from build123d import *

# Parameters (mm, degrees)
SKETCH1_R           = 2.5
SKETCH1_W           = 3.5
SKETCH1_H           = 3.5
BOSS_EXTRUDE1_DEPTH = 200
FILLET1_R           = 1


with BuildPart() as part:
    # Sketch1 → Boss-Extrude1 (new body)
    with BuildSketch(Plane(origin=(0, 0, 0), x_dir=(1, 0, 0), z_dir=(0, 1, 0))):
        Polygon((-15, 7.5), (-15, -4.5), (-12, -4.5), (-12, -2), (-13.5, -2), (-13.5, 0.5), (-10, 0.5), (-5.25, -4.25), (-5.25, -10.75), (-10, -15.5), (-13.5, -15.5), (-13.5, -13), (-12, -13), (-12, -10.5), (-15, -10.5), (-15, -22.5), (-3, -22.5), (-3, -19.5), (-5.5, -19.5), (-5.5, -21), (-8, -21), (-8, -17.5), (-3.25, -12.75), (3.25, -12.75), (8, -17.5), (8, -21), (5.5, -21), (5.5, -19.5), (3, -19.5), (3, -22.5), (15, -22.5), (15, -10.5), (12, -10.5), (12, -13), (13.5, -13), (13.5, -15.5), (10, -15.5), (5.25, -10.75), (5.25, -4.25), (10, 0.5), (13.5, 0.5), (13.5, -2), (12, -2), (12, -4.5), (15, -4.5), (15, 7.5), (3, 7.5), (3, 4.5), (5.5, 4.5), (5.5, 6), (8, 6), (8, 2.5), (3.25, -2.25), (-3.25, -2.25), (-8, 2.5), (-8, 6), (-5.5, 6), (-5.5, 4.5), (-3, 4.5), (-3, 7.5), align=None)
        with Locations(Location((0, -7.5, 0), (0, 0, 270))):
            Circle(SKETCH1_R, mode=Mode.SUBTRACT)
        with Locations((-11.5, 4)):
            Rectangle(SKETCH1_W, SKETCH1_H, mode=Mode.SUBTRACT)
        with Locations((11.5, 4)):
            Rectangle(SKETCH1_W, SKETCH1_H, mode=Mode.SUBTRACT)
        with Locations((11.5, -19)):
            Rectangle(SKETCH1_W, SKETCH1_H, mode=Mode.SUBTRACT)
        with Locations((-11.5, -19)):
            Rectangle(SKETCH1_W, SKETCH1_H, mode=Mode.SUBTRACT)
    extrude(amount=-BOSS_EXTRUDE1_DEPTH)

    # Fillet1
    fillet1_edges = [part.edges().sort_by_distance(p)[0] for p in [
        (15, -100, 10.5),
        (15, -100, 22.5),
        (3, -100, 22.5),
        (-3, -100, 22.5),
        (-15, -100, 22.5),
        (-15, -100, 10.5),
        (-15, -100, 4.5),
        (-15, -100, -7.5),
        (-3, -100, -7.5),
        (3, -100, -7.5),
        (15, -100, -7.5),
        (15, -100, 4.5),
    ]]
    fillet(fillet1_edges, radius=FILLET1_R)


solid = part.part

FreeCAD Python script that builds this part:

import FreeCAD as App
import Part
import Sketcher

V = App.Vector
Q = App.Units.Quantity


def edges_at(feature, points):
    """Names of the edges that pass closest to the given points."""
    edges = feature.Shape.Edges
    near = lambda p: min(range(len(edges)), key=lambda i: edges[i].distToShape(Part.Vertex(*p))[0])
    return sorted({f"Edge{near(p) + 1}" for p in points})


def add_polygon(sketch, points):
    """Adds a closed chain of lines whose ends are joined by coincident constraints."""
    first, n = sketch.GeometryCount, len(points)
    for a, b in zip(points, points[1:] + points[:1]):
        sketch.addGeometry(Part.LineSegment(App.Vector(*a, 0), App.Vector(*b, 0)), False)
    for i in range(n):
        sketch.addConstraint(Sketcher.Constraint("Coincident", first + i, 2, first + (i + 1) % n, 1))

doc = App.newDocument("Part")
body = doc.addObject("PartDesign::Body", "Body")

# Sketch on XZ plane
sketch1 = body.newObject("Sketcher::SketchObject", "Sketch")
sketch1.AttachmentSupport = (doc.getObject("XZ_Plane"), [""])
sketch1.MapMode = "FlatFace"
add_polygon(sketch1, [(-15, -7.5), (-15, 4.5), (-12, 4.5), (-12, 2), (-13.5, 2), (-13.5, -0.5), (-10, -0.5), (-5.2, 4.2), (-5.2, 10.8), (-10, 15.5), (-13.5, 15.5), (-13.5, 13), (-12, 13), (-12, 10.5), (-15, 10.5), (-15, 22.5), (-3, 22.5), (-3, 19.5), (-5.5, 19.5), (-5.5, 21), (-8, 21), (-8, 17.5), (-3.2, 12.8), (3.2, 12.8), (8, 17.5), (8, 21), (5.5, 21), (5.5, 19.5), (3, 19.5), (3, 22.5), (15, 22.5), (15, 10.5), (12, 10.5), (12, 13), (13.5, 13), (13.5, 15.5), (10, 15.5), (5.2, 10.8), (5.2, 4.2), (10, -0.5), (13.5, -0.5), (13.5, 2), (12, 2), (12, 4.5), (15, 4.5), (15, -7.5), (3, -7.5), (3, -4.5), (5.5, -4.5), (5.5, -6), (8, -6), (8, -2.5), (3.2, 2.2), (-3.2, 2.2), (-8, -2.5), (-8, -6), (-5.5, -6), (-5.5, -4.5), (-3, -4.5), (-3, -7.5)])  # lines 0-59
add_polygon(sketch1, [(-9.8, 20.8), (-13.2, 20.8), (-13.2, 17.2), (-9.8, 17.2)])  # lines 60-63
add_polygon(sketch1, [(13.2, 20.8), (9.8, 20.8), (9.8, 17.2), (13.2, 17.2)])  # lines 64-67
add_polygon(sketch1, [(-9.8, -2.2), (-13.2, -2.2), (-13.2, -5.8), (-9.8, -5.8)])  # lines 68-71
sketch1.addGeometry(Part.Circle(V(0, 7.5, 0), V(0, 0, 1), 2.5), False)  # 72
add_polygon(sketch1, [(13.2, -2.2), (9.8, -2.2), (9.8, -5.8), (13.2, -5.8)])  # lines 73-76
sketch1.addConstraint(Sketcher.Constraint("Vertical", 0))
sketch1.addConstraint(Sketcher.Constraint("Horizontal", 1))
sketch1.addConstraint(Sketcher.Constraint("Vertical", 2))
sketch1.addConstraint(Sketcher.Constraint("Horizontal", 3))
sketch1.addConstraint(Sketcher.Constraint("Vertical", 4))
sketch1.addConstraint(Sketcher.Constraint("Horizontal", 5))
sketch1.addConstraint(Sketcher.Constraint("Vertical", 7))
sketch1.addConstraint(Sketcher.Constraint("Horizontal", 9))
sketch1.addConstraint(Sketcher.Constraint("Vertical", 10))
sketch1.addConstraint(Sketcher.Constraint("Horizontal", 11))
sketch1.addConstraint(Sketcher.Constraint("Vertical", 12))
sketch1.addConstraint(Sketcher.Constraint("Horizontal", 13))
sketch1.addConstraint(Sketcher.Constraint("Vertical", 14))
sketch1.addConstraint(Sketcher.Constraint("Horizontal", 15))
sketch1.addConstraint(Sketcher.Constraint("Vertical", 16))
sketch1.addConstraint(Sketcher.Constraint("Horizontal", 17))
sketch1.addConstraint(Sketcher.Constraint("Vertical", 18))
sketch1.addConstraint(Sketcher.Constraint("Horizontal", 19))
sketch1.addConstraint(Sketcher.Constraint("Vertical", 20))
sketch1.addConstraint(Sketcher.Constraint("Horizontal", 22))
sketch1.addConstraint(Sketcher.Constraint("Vertical", 24))
sketch1.addConstraint(Sketcher.Constraint("Horizontal", 25))
sketch1.addConstraint(Sketcher.Constraint("Vertical", 26))
sketch1.addConstraint(Sketcher.Constraint("Horizontal", 27))
sketch1.addConstraint(Sketcher.Constraint("Vertical", 28))
sketch1.addConstraint(Sketcher.Constraint("Horizontal", 29))
sketch1.addConstraint(Sketcher.Constraint("Vertical", 30))
sketch1.addConstraint(Sketcher.Constraint("Horizontal", 31))
sketch1.addConstraint(Sketcher.Constraint("Vertical", 32))
sketch1.addConstraint(Sketcher.Constraint("Horizontal", 33))
sketch1.addConstraint(Sketcher.Constraint("Vertical", 34))
sketch1.addConstraint(Sketcher.Constraint("Horizontal", 35))
sketch1.addConstraint(Sketcher.Constraint("Vertical", 37))
sketch1.addConstraint(Sketcher.Constraint("Horizontal", 39))
sketch1.addConstraint(Sketcher.Constraint("Vertical", 40))
sketch1.addConstraint(Sketcher.Constraint("Horizontal", 41))
sketch1.addConstraint(Sketcher.Constraint("Vertical", 42))
sketch1.addConstraint(Sketcher.Constraint("Horizontal", 43))
sketch1.addConstraint(Sketcher.Constraint("Vertical", 44))
sketch1.addConstraint(Sketcher.Constraint("Horizontal", 45))
sketch1.addConstraint(Sketcher.Constraint("Vertical", 46))
sketch1.addConstraint(Sketcher.Constraint("Horizontal", 47))
sketch1.addConstraint(Sketcher.Constraint("Vertical", 48))
sketch1.addConstraint(Sketcher.Constraint("Horizontal", 49))
sketch1.addConstraint(Sketcher.Constraint("Vertical", 50))
sketch1.addConstraint(Sketcher.Constraint("Horizontal", 52))
sketch1.addConstraint(Sketcher.Constraint("Vertical", 54))
sketch1.addConstraint(Sketcher.Constraint("Horizontal", 55))
sketch1.addConstraint(Sketcher.Constraint("Vertical", 56))
sketch1.addConstraint(Sketcher.Constraint("Horizontal", 57))
sketch1.addConstraint(Sketcher.Constraint("Vertical", 58))
sketch1.addConstraint(Sketcher.Constraint("Horizontal", 59))
sketch1.addConstraint(Sketcher.Constraint("Horizontal", 60))
sketch1.addConstraint(Sketcher.Constraint("Vertical", 61))
sketch1.addConstraint(Sketcher.Constraint("Horizontal", 62))
sketch1.addConstraint(Sketcher.Constraint("Vertical", 63))
sketch1.addConstraint(Sketcher.Constraint("Horizontal", 64))
sketch1.addConstraint(Sketcher.Constraint("Vertical", 65))
sketch1.addConstraint(Sketcher.Constraint("Horizontal", 66))
sketch1.addConstraint(Sketcher.Constraint("Vertical", 67))
sketch1.addConstraint(Sketcher.Constraint("Horizontal", 68))
sketch1.addConstraint(Sketcher.Constraint("Vertical", 69))
sketch1.addConstraint(Sketcher.Constraint("Horizontal", 70))
sketch1.addConstraint(Sketcher.Constraint("Vertical", 71))
sketch1.addConstraint(Sketcher.Constraint("Horizontal", 73))
sketch1.addConstraint(Sketcher.Constraint("Vertical", 74))
sketch1.addConstraint(Sketcher.Constraint("Horizontal", 75))
sketch1.addConstraint(Sketcher.Constraint("Vertical", 76))
sketch1.addConstraint(Sketcher.Constraint("Symmetric", 20, 2, 23, 2, -2))
sketch1.addConstraint(Sketcher.Constraint("Symmetric", 18, 2, 25, 2, -2))
sketch1.addConstraint(Sketcher.Constraint("Symmetric", 16, 2, 27, 2, -2))
sketch1.addConstraint(Sketcher.Constraint("Symmetric", 14, 2, 29, 2, -2))
sketch1.addConstraint(Sketcher.Constraint("Symmetric", 12, 2, 31, 2, -2))
sketch1.addConstraint(Sketcher.Constraint("Symmetric", 10, 2, 33, 2, -2))
sketch1.addConstraint(Sketcher.Constraint("Symmetric", 8, 2, 35, 2, -2))
sketch1.addConstraint(Sketcher.Constraint("Symmetric", 7, 2, 36, 2, -2))
sketch1.addConstraint(Sketcher.Constraint("Symmetric", 5, 2, 38, 2, -2))
sketch1.addConstraint(Sketcher.Constraint("Symmetric", 3, 2, 40, 2, -2))
sketch1.addConstraint(Sketcher.Constraint("Symmetric", 1, 2, 42, 2, -2))
sketch1.addConstraint(Sketcher.Constraint("Symmetric", 50, 2, 53, 2, -2))
sketch1.addConstraint(Sketcher.Constraint("Symmetric", 48, 2, 55, 2, -2))
sketch1.addConstraint(Sketcher.Constraint("Symmetric", 46, 2, 57, 2, -2))
sketch1.addConstraint(Sketcher.Constraint("Symmetric", 44, 2, 59, 2, -2))
sketch1.addConstraint(Sketcher.Constraint("Symmetric", 63, 2, 64, 2, -2))
sketch1.addConstraint(Sketcher.Constraint("Symmetric", 61, 2, 66, 2, -2))
sketch1.addConstraint(Sketcher.Constraint("Symmetric", 71, 2, 73, 2, -2))
sketch1.addConstraint(Sketcher.Constraint("Symmetric", 69, 2, 75, 2, -2))
sketch1.addConstraint(Sketcher.Constraint("PointOnObject", 72, 3, -2))
sketch1.addConstraint(Sketcher.Constraint("Perpendicular", 6, 8))
sketch1.addConstraint(Sketcher.Constraint("Parallel", 8, 21))
sketch1.addConstraint(Sketcher.Constraint("Perpendicular", 21, 23))
sketch1.addConstraint(Sketcher.Constraint("Parallel", 23, 36))
sketch1.addConstraint(Sketcher.Constraint("Perpendicular", 36, 38))
sketch1.addConstraint(Sketcher.Constraint("Parallel", 38, 51))
sketch1.addConstraint(Sketcher.Constraint("Perpendicular", 51, 53))
sketch1.addConstraint(Sketcher.Constraint("Vertical", 5, 2, 8, 2))
sketch1.addConstraint(Sketcher.Constraint("Vertical", 4, 2, 9, 2))
sketch1.addConstraint(Sketcher.Constraint("Vertical", 2, 2, 11, 2))
sketch1.addConstraint(Sketcher.Constraint("Vertical", 0, 2, 13, 2))
sketch1.addConstraint(Sketcher.Constraint("Vertical", 28, 2, 45, 2))
sketch1.addConstraint(Sketcher.Constraint("Vertical", 26, 2, 47, 2))
sketch1.addConstraint(Sketcher.Constraint("Vertical", 24, 2, 49, 2))
sketch1.addConstraint(Sketcher.Constraint("Vertical", 22, 2, 51, 2))
sketch1.addConstraint(Sketcher.Constraint("Vertical", 61, 2, 68, 2))
sketch1.addConstraint(Sketcher.Constraint("Vertical", 63, 2, 70, 2))
sketch1.addConstraint(Sketcher.Constraint("Equal", 17, 19))
sketch1.addConstraint(Sketcher.Constraint("Equal", 39, 60))
sketch1.addConstraint(Sketcher.Constraint("Equal", 59, 0))
sketch1.addConstraint(Sketcher.Constraint("Equal", 57, 2))
sketch1.addConstraint(Sketcher.Constraint("Equal", 2, 4))
sketch1.addConstraint(Sketcher.Constraint("Equal", 52, 7))
sketch1.addConstraint(Sketcher.Constraint("Equal", 4, 10))
sketch1.addConstraint(Sketcher.Constraint("Equal", 10, 12))
sketch1.addConstraint(Sketcher.Constraint("Equal", 0, 14))
sketch1.addConstraint(Sketcher.Constraint("Equal", 43, 16))
sketch1.addConstraint(Sketcher.Constraint("Equal", 41, 18))
sketch1.addConstraint(Sketcher.Constraint("Equal", 75, 20))
sketch1.addConstraint(Sketcher.Constraint("Equal", 28, 46))
sketch1.addConstraint(Sketcher.Constraint("Equal", 26, 48))
sketch1.addConstraint(Sketcher.Constraint("Equal", 24, 50))
sketch1.addConstraint(Sketcher.Constraint("Equal", 54, 61))
sketch1.addConstraint(Sketcher.Constraint("Equal", 67, 69))
sketch1.addConstraint(Sketcher.Constraint("Equal", 8, 21))
sketch1.addConstraint(Sketcher.Constraint("Diameter", 72, Q("5 mm")))
sketch1.addConstraint(Sketcher.Constraint("DistanceX", 1, 1, 1, 2, Q("3 mm")))
sketch1.addConstraint(Sketcher.Constraint("DistanceX", 15, 1, 15, 2, Q("12 mm")))
sketch1.addConstraint(Sketcher.Constraint("DistanceX", 3, 2, 3, 1, Q("1.5 mm")))
sketch1.addConstraint(Sketcher.Constraint("DistanceX", 5, 1, 5, 2, Q("3.5 mm")))
sketch1.addConstraint(Sketcher.Constraint("DistanceX", 17, 2, 17, 1, Q("2.5 mm")))
sketch1.addConstraint(Sketcher.Constraint("DistanceX", 22, 1, 22, 2, Q("6.5 mm")))
sketch1.addConstraint(Sketcher.Constraint("DistanceX", 0, 2, -1, 1, Q("15 mm")))
sketch1.addConstraint(Sketcher.Constraint("DistanceY", -1, 1, 2, 2, Q("2 mm")))
sketch1.addConstraint(Sketcher.Constraint("DistanceY", -1, 1, 72, 3, Q("7.5 mm")))
sketch1.addConstraint(Sketcher.Constraint("DistanceX", 60, 2, -1, 1, Q("13.25 mm")))
sketch1.addConstraint(Sketcher.Constraint("DistanceY", -1, 1, 60, 2, Q("20.75 mm")))
sketch1.addConstraint(Sketcher.Constraint("DistanceY", 68, 2, -1, 1, Q("2.25 mm")))
pad1 = body.newObject("PartDesign::Pad", "Pad")
pad1.Profile = sketch1
pad1.Length = 200
doc.recompute()

fillet = body.newObject("PartDesign::Fillet", "Fillet")
fillet.Base = (pad1, edges_at(pad1, [
    (15, -100, 10.5),
    (15, -100, 22.5),
    (3, -100, 22.5),
    (-3, -100, 22.5),
    (-15, -100, 22.5),
    (-15, -100, 10.5),
    (-15, -100, 4.5),
    (-15, -100, -7.5),
    (-3, -100, -7.5),
    (3, -100, -7.5),
    (15, -100, -7.5),
    (15, -100, 4.5),
]))
fillet.Radius = 1

doc.recompute()
